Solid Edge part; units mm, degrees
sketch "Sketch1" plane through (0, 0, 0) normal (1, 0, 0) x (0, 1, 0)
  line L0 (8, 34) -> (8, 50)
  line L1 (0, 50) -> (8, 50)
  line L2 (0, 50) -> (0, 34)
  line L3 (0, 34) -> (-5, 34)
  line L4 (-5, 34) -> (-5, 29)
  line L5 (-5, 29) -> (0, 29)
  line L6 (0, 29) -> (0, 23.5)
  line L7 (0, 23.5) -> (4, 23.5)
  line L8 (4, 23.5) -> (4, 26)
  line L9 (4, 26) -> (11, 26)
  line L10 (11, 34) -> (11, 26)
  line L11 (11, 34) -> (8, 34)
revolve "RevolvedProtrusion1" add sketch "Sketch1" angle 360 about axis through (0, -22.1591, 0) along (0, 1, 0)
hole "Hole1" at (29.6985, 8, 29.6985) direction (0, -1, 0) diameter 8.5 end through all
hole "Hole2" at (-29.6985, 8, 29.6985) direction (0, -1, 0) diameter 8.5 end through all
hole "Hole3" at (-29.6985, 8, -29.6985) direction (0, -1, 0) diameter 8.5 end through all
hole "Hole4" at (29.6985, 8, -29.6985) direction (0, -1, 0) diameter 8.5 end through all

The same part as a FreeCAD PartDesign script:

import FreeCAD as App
import Part
import Sketcher
from FreeCAD import Vector

doc = App.newDocument("Part")
body = doc.addObject("PartDesign::Body", "Body")

# Sketch on YZ plane
sketch1 = doc.addObject("Sketcher::SketchObject", "Sketch")
body.addObject(sketch1)
sketch1.AttachmentSupport = (doc.YZ_Plane, [""])
sketch1.MapMode = "FlatFace"
sketch1.addGeometry([
    Part.LineSegment(Vector(11, 34, 0), Vector(8, 34, 0)),  # 0
    Part.LineSegment(Vector(8, 34, 0), Vector(8, 50, 0)),  # 1
    Part.LineSegment(Vector(8, 50, 0), Vector(0, 50, 0)),  # 2
    Part.LineSegment(Vector(0, 50, 0), Vector(0, 34, 0)),  # 3
    Part.LineSegment(Vector(0, 34, 0), Vector(-5, 34, 0)),  # 4
    Part.LineSegment(Vector(-5, 34, 0), Vector(-5, 29, 0)),  # 5
    Part.LineSegment(Vector(-5, 29, 0), Vector(0, 29, 0)),  # 6
    Part.LineSegment(Vector(0, 29, 0), Vector(0, 23.5, 0)),  # 7
    Part.LineSegment(Vector(0, 23.5, 0), Vector(4, 23.5, 0)),  # 8
    Part.LineSegment(Vector(4, 23.5, 0), Vector(4, 26, 0)),  # 9
    Part.LineSegment(Vector(4, 26, 0), Vector(11, 26, 0)),  # 10
    Part.LineSegment(Vector(11, 26, 0), Vector(11, 34, 0)),  # 11
], False)
sketch1.addConstraint([
    Sketcher.Constraint("Coincident", 0, 2, 1, 1),
    Sketcher.Constraint("Coincident", 1, 2, 2, 1),
    Sketcher.Constraint("Coincident", 2, 2, 3, 1),
    Sketcher.Constraint("Coincident", 3, 2, 4, 1),
    Sketcher.Constraint("Coincident", 4, 2, 5, 1),
    Sketcher.Constraint("Coincident", 5, 2, 6, 1),
    Sketcher.Constraint("Coincident", 6, 2, 7, 1),
    Sketcher.Constraint("Coincident", 7, 2, 8, 1),
    Sketcher.Constraint("Coincident", 8, 2, 9, 1),
    Sketcher.Constraint("Coincident", 9, 2, 10, 1),
    Sketcher.Constraint("Coincident", 10, 2, 11, 1),
    Sketcher.Constraint("Coincident", 11, 2, 0, 1),
    Sketcher.Constraint("Horizontal", 0),
    Sketcher.Constraint("Vertical", 1),
    Sketcher.Constraint("Horizontal", 2),
    Sketcher.Constraint("Vertical", 3),
    Sketcher.Constraint("Horizontal", 4),
    Sketcher.Constraint("Vertical", 5),
    Sketcher.Constraint("Horizontal", 6),
    Sketcher.Constraint("Vertical", 7),
    Sketcher.Constraint("Horizontal", 8),
    Sketcher.Constraint("Vertical", 9),
    Sketcher.Constraint("Horizontal", 10),
    Sketcher.Constraint("Vertical", 11),
    Sketcher.Constraint("PointOnObject", 2, 2, -2),
    Sketcher.Constraint("PointOnObject", 6, 2, -2),
    Sketcher.Constraint("Horizontal", 0, 2, 3, 2),
    Sketcher.Constraint("Equal", 6, 5),
    Sketcher.Constraint("Equal", 2, 11),
    Sketcher.Constraint("DistanceX", 0, 2, 0, 1, 3.0),
    Sketcher.Constraint("DistanceX", 2, 2, 2, 1, 8.0),
    Sketcher.Constraint("DistanceX", 4, 2, 4, 1, 5.0),
    Sketcher.Constraint("DistanceX", 8, 1, 8, 2, 4.0),
    Sketcher.Constraint("DistanceY", 1, 1, 1, 2, 16.0),
    Sketcher.Constraint("DistanceY", 7, 2, 7, 1, 5.5),
    Sketcher.Constraint("DistanceY", -1, 1, 0, 2, 34.0),
])
revolution = doc.addObject("PartDesign::Revolution", "Revolution")
body.addObject(revolution)
revolution.Profile = sketch1
revolution.ReferenceAxis = (sketch1, ["H_Axis"])
revolution.Angle = 360

# Sketch on XZ plane
sketch2 = doc.addObject("Sketcher::SketchObject", "Sketch001")
body.addObject(sketch2)
sketch2.AttachmentSupport = (doc.XZ_Plane, [""])
sketch2.MapMode = "FlatFace"
sketch2.AttachmentOffset = App.Placement(Vector(0, 0, -8), App.Rotation())
sketch2.addGeometry(Part.Circle(Vector(29.6985, 29.6985, 0), Vector(0, 0, 1), 4.25), False)
sketch2.addConstraint([
    Sketcher.Constraint("Diameter", 0, 8.5),
    Sketcher.Constraint("DistanceX", -1, 1, 0, 3, 29.6985),
    Sketcher.Constraint("DistanceY", -1, 1, 0, 3, 29.6985),
])
doc.recompute()
hole = doc.addObject("PartDesign::Hole", "Hole")
body.addObject(hole)
hole.Profile = sketch2
hole.ThreadType = "None"
hole.Diameter = 8.5
hole.DepthType = "ThroughAll"
hole.Reversed = True

# Sketch on XZ plane
sketch3 = doc.addObject("Sketcher::SketchObject", "Sketch002")
body.addObject(sketch3)
sketch3.AttachmentSupport = (doc.XZ_Plane, [""])
sketch3.MapMode = "FlatFace"
sketch3.AttachmentOffset = App.Placement(Vector(0, 0, -8), App.Rotation())
sketch3.addGeometry(Part.Circle(Vector(-29.6985, 29.6985, 0), Vector(0, 0, 1), 4.25), False)
sketch3.addConstraint([
    Sketcher.Constraint("Diameter", 0, 8.5),
    Sketcher.Constraint("DistanceX", 0, 3, -1, 1, 29.6985),
    Sketcher.Constraint("DistanceY", -1, 1, 0, 3, 29.6985),
])
doc.recompute()
hole2 = doc.addObject("PartDesign::Hole", "Hole001")
body.addObject(hole2)
hole2.Profile = sketch3
hole2.ThreadType = "None"
hole2.Diameter = 8.5
hole2.DepthType = "ThroughAll"
hole2.Reversed = True

# Sketch on XZ plane
sketch4 = doc.addObject("Sketcher::SketchObject", "Sketch003")
body.addObject(sketch4)
sketch4.AttachmentSupport = (doc.XZ_Plane, [""])
sketch4.MapMode = "FlatFace"
sketch4.AttachmentOffset = App.Placement(Vector(0, 0, -8), App.Rotation())
sketch4.addGeometry(Part.Circle(Vector(-29.6985, -29.6985, 0), Vector(0, 0, 1), 4.25), False)
sketch4.addConstraint([
    Sketcher.Constraint("Diameter", 0, 8.5),
    Sketcher.Constraint("DistanceX", 0, 3, -1, 1, 29.6985),
    Sketcher.Constraint("DistanceY", 0, 3, -1, 1, 29.6985),
])
doc.recompute()
hole3 = doc.addObject("PartDesign::Hole", "Hole002")
body.addObject(hole3)
hole3.Profile = sketch4
hole3.ThreadType = "None"
hole3.Diameter = 8.5
hole3.DepthType = "ThroughAll"
hole3.Reversed = True

# Sketch on XZ plane
sketch5 = doc.addObject("Sketcher::SketchObject", "Sketch004")
body.addObject(sketch5)
sketch5.AttachmentSupport = (doc.XZ_Plane, [""])
sketch5.MapMode = "FlatFace"
sketch5.AttachmentOffset = App.Placement(Vector(0, 0, -8), App.Rotation())
sketch5.addGeometry(Part.Circle(Vector(29.6985, -29.6985, 0), Vector(0, 0, 1), 4.25), False)
sketch5.addConstraint([
    Sketcher.Constraint("Diameter", 0, 8.5),
    Sketcher.Constraint("DistanceX", -1, 1, 0, 3, 29.6985),
    Sketcher.Constraint("DistanceY", 0, 3, -1, 1, 29.6985),
])
doc.recompute()
hole4 = doc.addObject("PartDesign::Hole", "Hole003")
body.addObject(hole4)
hole4.Profile = sketch5
hole4.ThreadType = "None"
hole4.Diameter = 8.5
hole4.DepthType = "ThroughAll"
hole4.Reversed = True

doc.recompute()
